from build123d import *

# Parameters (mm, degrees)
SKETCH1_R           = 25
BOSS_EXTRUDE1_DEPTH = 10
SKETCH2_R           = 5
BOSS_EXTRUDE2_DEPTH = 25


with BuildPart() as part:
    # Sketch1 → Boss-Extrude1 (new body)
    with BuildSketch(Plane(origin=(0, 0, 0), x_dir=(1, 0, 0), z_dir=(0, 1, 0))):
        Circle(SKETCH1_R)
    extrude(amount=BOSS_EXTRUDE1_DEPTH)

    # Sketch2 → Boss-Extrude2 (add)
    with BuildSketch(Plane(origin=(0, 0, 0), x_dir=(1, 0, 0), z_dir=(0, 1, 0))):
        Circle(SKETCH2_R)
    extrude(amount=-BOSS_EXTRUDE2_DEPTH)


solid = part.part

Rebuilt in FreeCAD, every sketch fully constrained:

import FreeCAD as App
import Part
import Sketcher
from FreeCAD import Vector
Q = App.Units.Quantity

doc = App.newDocument("Part")
body = doc.addObject("PartDesign::Body", "Body")

# Sketch on XZ plane
sketch1 = doc.addObject("Sketcher::SketchObject", "Sketch")
body.addObject(sketch1)
sketch1.AttachmentSupport = (doc.XZ_Plane, [""])
sketch1.MapMode = "FlatFace"
sketch1.addGeometry(Part.Circle(Vector(0, 0, 0), Vector(0, 0, 1), 25), False)
sketch1.addConstraint([
    Sketcher.Constraint("Coincident", 0, 3, -1, 1),
    Sketcher.Constraint("Diameter", 0, Q("50 mm")),
])
pad1 = doc.addObject("PartDesign::Pad", "Pad")
body.addObject(pad1)
pad1.Profile = sketch1
pad1.Length = 10
pad1.Reversed = True

# Sketch on XZ plane
sketch2 = doc.addObject("Sketcher::SketchObject", "Sketch001")
body.addObject(sketch2)
sketch2.AttachmentSupport = (doc.XZ_Plane, [""])
sketch2.MapMode = "FlatFace"
sketch2.addGeometry(Part.Circle(Vector(0, 0, 0), Vector(0, 0, 1), 5), False)
sketch2.addConstraint([
    Sketcher.Constraint("Coincident", 0, 3, -1, 1),
    Sketcher.Constraint("Diameter", 0, Q("10 mm")),
])
pad2 = doc.addObject("PartDesign::Pad", "Pad001")
body.addObject(pad2)
pad2.Profile = sketch2
pad2.Length = 25

doc.recompute()
